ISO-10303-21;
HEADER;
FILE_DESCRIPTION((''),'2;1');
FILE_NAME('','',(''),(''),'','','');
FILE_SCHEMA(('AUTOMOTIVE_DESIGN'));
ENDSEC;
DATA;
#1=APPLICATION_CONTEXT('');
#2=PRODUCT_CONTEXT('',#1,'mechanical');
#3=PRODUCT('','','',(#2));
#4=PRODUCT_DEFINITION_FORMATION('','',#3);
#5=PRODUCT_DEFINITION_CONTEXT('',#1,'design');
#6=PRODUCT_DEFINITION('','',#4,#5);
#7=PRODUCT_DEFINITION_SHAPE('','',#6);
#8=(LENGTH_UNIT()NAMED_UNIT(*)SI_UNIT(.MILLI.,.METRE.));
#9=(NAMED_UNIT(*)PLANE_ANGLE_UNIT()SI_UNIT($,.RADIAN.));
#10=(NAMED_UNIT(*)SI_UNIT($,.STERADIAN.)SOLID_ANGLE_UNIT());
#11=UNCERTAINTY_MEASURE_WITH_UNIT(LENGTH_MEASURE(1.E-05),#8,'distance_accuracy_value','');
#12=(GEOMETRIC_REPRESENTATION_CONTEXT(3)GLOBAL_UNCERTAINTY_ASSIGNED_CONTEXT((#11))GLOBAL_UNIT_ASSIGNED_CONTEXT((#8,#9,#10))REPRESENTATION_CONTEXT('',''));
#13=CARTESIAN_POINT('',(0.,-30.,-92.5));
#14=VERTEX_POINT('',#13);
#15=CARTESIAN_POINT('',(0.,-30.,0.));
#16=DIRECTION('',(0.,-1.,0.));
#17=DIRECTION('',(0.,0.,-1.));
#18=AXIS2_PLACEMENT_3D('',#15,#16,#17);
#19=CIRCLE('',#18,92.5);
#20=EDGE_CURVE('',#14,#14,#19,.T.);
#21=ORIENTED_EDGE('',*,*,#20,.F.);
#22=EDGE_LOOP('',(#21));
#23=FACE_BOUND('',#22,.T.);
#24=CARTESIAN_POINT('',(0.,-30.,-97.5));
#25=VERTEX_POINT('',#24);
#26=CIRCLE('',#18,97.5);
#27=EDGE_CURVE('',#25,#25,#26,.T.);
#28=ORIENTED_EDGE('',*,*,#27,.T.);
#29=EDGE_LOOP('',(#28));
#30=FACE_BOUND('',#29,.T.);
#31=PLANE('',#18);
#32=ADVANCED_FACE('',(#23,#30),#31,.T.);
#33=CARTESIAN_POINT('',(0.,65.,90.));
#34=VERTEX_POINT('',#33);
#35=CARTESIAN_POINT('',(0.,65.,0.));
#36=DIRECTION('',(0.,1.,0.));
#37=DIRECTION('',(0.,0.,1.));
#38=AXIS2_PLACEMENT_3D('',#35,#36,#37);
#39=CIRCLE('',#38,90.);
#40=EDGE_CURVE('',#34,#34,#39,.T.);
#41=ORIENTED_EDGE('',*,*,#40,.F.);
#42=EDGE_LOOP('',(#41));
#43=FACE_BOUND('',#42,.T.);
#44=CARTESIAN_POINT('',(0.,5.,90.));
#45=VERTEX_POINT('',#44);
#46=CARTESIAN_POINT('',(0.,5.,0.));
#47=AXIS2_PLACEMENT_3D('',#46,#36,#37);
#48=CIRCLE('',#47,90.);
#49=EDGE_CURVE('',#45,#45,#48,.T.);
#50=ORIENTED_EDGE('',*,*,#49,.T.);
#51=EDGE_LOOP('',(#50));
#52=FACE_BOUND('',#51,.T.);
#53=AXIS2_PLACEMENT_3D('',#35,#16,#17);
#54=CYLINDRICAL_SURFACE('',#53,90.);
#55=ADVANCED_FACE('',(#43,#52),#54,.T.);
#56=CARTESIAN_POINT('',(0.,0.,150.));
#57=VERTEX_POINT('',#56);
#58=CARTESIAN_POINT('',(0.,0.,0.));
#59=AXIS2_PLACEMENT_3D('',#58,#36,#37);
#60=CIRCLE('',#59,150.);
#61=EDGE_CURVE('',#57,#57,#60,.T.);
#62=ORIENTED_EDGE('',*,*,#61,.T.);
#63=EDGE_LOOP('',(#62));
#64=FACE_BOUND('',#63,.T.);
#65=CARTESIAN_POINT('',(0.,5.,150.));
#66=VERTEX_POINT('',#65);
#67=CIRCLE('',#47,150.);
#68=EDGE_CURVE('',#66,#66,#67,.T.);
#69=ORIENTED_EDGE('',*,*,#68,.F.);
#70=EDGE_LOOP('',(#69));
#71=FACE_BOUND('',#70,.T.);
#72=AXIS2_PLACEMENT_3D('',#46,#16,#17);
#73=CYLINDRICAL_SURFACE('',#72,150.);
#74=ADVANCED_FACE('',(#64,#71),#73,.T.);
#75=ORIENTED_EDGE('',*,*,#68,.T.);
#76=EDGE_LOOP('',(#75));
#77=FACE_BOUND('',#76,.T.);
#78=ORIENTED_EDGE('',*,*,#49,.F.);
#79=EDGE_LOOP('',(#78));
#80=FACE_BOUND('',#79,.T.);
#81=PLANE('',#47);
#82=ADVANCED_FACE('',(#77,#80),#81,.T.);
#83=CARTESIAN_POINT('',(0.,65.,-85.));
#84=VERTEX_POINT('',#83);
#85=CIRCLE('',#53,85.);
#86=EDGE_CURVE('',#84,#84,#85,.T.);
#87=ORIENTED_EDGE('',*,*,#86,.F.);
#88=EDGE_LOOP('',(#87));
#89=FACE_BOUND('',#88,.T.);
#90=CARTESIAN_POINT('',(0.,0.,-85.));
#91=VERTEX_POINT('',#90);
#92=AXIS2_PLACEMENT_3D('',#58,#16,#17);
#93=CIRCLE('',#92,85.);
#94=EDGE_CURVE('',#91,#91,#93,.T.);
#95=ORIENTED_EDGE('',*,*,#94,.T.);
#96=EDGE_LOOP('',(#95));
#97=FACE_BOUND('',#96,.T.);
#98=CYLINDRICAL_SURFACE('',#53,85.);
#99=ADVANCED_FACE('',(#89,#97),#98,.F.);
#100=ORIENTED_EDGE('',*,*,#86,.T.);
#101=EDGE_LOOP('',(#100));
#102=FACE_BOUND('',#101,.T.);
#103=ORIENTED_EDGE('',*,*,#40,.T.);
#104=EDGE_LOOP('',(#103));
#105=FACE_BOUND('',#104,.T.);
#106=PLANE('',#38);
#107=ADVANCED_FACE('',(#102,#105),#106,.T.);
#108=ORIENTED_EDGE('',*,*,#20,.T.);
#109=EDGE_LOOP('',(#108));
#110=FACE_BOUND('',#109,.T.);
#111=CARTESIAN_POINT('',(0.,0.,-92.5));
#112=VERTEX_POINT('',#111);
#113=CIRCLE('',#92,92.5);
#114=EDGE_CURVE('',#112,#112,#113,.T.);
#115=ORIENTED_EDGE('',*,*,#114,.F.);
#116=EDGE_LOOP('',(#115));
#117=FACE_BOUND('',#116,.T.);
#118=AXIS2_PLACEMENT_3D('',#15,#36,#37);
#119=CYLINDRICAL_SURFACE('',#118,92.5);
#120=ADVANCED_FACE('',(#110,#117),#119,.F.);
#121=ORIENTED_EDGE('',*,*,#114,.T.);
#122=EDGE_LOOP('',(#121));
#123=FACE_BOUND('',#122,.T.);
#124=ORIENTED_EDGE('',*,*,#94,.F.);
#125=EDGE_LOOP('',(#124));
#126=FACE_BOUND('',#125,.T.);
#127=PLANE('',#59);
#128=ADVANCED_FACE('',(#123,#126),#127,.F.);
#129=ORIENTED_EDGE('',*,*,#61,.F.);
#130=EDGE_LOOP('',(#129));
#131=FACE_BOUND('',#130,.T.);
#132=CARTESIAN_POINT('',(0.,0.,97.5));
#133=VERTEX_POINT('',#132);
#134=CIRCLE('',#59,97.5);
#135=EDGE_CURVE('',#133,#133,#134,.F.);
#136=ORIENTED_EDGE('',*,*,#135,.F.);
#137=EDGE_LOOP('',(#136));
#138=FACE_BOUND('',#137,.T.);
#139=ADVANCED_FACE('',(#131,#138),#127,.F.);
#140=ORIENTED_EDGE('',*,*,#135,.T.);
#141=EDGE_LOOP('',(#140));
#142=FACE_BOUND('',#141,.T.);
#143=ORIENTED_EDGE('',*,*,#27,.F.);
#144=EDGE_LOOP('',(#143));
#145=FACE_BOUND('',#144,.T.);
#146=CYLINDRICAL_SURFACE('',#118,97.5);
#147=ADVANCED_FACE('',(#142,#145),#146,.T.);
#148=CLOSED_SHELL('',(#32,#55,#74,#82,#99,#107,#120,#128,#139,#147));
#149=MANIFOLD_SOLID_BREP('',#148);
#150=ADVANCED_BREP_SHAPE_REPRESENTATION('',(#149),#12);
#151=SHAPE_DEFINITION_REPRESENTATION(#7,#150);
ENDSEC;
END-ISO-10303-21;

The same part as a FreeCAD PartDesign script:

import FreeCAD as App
import Part
import Sketcher
from FreeCAD import Vector
Q = App.Units.Quantity

doc = App.newDocument("Part")
body = doc.addObject("PartDesign::Body", "Body")

sketch1 = body.newObject("Sketcher::SketchObject", "Sketch")
sketch1.AttachmentSupport = (doc.getObject("XZ_Plane"), [""])
sketch1.MapMode = "FlatFace"
sketch1.addGeometry(Part.Circle(Vector(0, 0, 0), Vector(0, 0, 1), 150), False)
sketch1.addConstraint(Sketcher.Constraint("Coincident", 0, 3, -1, 1))
sketch1.addConstraint(Sketcher.Constraint("Diameter", 0, Q("300 mm")))
pad1 = body.newObject("PartDesign::Pad", "Pad")
pad1.Profile = sketch1
pad1.Length = 5
pad1.Reversed = True

sketch2 = body.newObject("Sketcher::SketchObject", "Sketch001")
sketch2.AttachmentSupport = (doc.getObject("XZ_Plane"), [""])
sketch2.MapMode = "FlatFace"
sketch2.AttachmentOffset = App.Placement(Vector(0, 0, -5), App.Rotation())
sketch2.addGeometry(Part.Circle(Vector(0, 0, 0), Vector(0, 0, 1), 90), False)
sketch2.addConstraint(Sketcher.Constraint("Coincident", 0, 3, -1, 1))
sketch2.addConstraint(Sketcher.Constraint("Diameter", 0, Q("180 mm")))
pad2 = body.newObject("PartDesign::Pad", "Pad001")
pad2.Profile = sketch2
pad2.Length = 60
pad2.Reversed = True

sketch3 = body.newObject("Sketcher::SketchObject", "Sketch002")
sketch3.AttachmentSupport = (doc.getObject("XZ_Plane"), [""])
sketch3.MapMode = "FlatFace"
sketch3.addGeometry(Part.Circle(Vector(0, 0, 0), Vector(0, 0, 1), 85), False)
sketch3.addConstraint(Sketcher.Constraint("Coincident", 0, 3, -1, 1))
sketch3.addConstraint(Sketcher.Constraint("Diameter", 0, Q("170 mm")))
pocket1 = body.newObject("PartDesign::Pocket", "Pocket")
pocket1.Profile = sketch3
pocket1.Type = "ThroughAll"

sketch4 = body.newObject("Sketcher::SketchObject", "Sketch003")
sketch4.AttachmentSupport = (doc.getObject("XZ_Plane"), [""])
sketch4.MapMode = "FlatFace"
sketch4.addGeometry(Part.Circle(Vector(0, 0, 0), Vector(0, 0, 1), 98), False)
sketch4.addGeometry(Part.Circle(Vector(0, 0, 0), Vector(0, 0, 1), 92), False)
sketch4.addConstraint(Sketcher.Constraint("Coincident", 0, 3, -1, 1))
sketch4.addConstraint(Sketcher.Constraint("Coincident", 1, 3, -1, 1))
sketch4.addConstraint(Sketcher.Constraint("Diameter", 0, Q("195 mm")))
sketch4.addConstraint(Sketcher.Constraint("Diameter", 1, Q("185 mm")))
pad3 = body.newObject("PartDesign::Pad", "Pad002")
pad3.Profile = sketch4
pad3.Length = 30

doc.recompute()
